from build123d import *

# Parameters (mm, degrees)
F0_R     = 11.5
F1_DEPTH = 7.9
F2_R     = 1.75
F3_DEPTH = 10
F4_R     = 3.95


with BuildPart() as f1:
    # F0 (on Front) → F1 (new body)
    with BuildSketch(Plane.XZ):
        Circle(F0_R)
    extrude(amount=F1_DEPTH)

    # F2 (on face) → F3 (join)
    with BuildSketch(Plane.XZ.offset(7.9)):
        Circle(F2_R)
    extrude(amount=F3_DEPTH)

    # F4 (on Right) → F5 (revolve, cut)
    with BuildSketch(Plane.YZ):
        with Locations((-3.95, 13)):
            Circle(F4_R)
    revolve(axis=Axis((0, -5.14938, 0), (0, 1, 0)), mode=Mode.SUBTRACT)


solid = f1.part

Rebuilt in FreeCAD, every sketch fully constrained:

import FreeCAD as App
import Part
import Sketcher
Q = App.Units.Quantity

doc = App.newDocument("Part")
body = doc.addObject("PartDesign::Body", "Body")

sketch1 = body.newObject("Sketcher::SketchObject", "Sketch")
sketch1.AttachmentSupport = (doc.getObject("XZ_Plane"), [""])
sketch1.MapMode = "FlatFace"
sketch1.addGeometry(Part.Circle(App.Vector(0, 0, 0), App.Vector(0, 0, 1), 12), False)
sketch1.addConstraint([
    Sketcher.Constraint("Coincident", 0, 3, -1, 1),
    Sketcher.Constraint("Diameter", 0, Q("23 mm")),
])
pad1 = body.newObject("PartDesign::Pad", "Pad")
pad1.Profile = sketch1
pad1.Length = 7.9

sketch2 = body.newObject("Sketcher::SketchObject", "Sketch001")
sketch2.AttachmentSupport = (doc.getObject("XZ_Plane"), [""])
sketch2.MapMode = "FlatFace"
sketch2.AttachmentOffset = App.Placement(App.Vector(0, 0, 7.9), App.Rotation())
sketch2.addGeometry(Part.Circle(App.Vector(0, 0, 0), App.Vector(0, 0, 1), 1.8), False)
sketch2.addConstraint([
    Sketcher.Constraint("Coincident", 0, 3, -1, 1),
    Sketcher.Constraint("Diameter", 0, Q("3.5 mm")),
])
pad2 = body.newObject("PartDesign::Pad", "Pad001")
pad2.Profile = sketch2
pad2.Length = 10

sketch3 = body.newObject("Sketcher::SketchObject", "Sketch002")
sketch3.AttachmentSupport = (doc.getObject("YZ_Plane"), [""])
sketch3.MapMode = "FlatFace"
sketch3.addGeometry(Part.Circle(App.Vector(-4, 13, 0), App.Vector(0, 0, 1), 4), False)
sketch3.addConstraint([
    Sketcher.Constraint("Diameter", 0, Q("7.9 mm")),
    Sketcher.Constraint("DistanceY", -1, 1, 0, 3, Q("13 mm")),
    Sketcher.Constraint("DistanceX", 0, 3, -1, 1, Q("3.95 mm")),
])
groove = body.newObject("PartDesign::Groove", "Groove")
groove.Profile = sketch3
groove.ReferenceAxis = (sketch3, ["H_Axis"])
groove.Angle = 360

doc.recompute()
